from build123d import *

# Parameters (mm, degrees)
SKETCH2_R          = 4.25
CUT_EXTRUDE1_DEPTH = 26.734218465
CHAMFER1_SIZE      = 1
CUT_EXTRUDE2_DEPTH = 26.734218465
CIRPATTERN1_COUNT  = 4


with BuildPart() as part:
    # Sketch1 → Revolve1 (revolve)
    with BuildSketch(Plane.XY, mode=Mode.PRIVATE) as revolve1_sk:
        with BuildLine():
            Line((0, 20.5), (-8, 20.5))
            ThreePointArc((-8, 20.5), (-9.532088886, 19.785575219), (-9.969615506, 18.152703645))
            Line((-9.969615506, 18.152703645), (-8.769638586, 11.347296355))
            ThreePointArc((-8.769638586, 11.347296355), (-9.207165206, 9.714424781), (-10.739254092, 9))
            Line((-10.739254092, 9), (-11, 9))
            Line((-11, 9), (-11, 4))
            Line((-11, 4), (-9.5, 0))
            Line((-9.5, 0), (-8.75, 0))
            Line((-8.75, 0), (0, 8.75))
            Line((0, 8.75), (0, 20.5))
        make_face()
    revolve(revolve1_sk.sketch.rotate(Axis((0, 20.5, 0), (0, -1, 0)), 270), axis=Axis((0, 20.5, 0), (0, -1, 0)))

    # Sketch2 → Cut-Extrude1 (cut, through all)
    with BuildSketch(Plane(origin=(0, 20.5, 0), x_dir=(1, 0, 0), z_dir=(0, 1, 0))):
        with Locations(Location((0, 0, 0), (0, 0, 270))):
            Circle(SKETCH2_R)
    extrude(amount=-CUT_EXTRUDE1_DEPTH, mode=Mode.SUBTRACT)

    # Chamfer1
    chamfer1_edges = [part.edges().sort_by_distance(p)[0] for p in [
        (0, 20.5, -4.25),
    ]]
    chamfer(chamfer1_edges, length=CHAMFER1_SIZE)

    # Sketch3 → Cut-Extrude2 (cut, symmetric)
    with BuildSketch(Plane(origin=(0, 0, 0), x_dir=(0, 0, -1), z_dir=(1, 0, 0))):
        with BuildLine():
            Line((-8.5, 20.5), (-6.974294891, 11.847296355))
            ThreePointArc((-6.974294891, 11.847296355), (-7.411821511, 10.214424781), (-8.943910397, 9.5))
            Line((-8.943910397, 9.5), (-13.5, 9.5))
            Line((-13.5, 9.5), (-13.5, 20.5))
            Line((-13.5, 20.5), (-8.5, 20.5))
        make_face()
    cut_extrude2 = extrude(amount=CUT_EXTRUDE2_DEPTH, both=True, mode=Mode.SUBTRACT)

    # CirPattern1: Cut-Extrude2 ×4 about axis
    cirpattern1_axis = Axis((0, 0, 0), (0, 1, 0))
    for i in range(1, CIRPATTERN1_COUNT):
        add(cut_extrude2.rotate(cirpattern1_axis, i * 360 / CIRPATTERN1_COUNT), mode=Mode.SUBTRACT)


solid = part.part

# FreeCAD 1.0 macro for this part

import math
import FreeCAD as App
import Part
import Sketcher
from FreeCAD import Vector
Q = App.Units.Quantity


def edges_at(feature, points):
    """Names of the edges that pass closest to the given points."""
    edges = feature.Shape.Edges
    near = lambda p: min(range(len(edges)), key=lambda i: edges[i].distToShape(Part.Vertex(*p))[0])
    return sorted({f"Edge{near(p) + 1}" for p in points})

doc = App.newDocument("Part")
params = doc.addObject("Spreadsheet::Sheet", "Params")
for row, (alias, value) in enumerate([
    ("sketch1_radius", "2 mm"),
    ("sketch1_width", "8 mm"),
    ("sketch1_height", "5 mm"),
    ("sketch1_width2", "0.75 mm"),
    ("sketch1_height2", "11.75 mm"),
    ("revolution_angle", "360 deg"),
    ("sketch2_diameter", "8.5 mm"),
    ("chamfer_size", "1 mm"),
    ("sketch3_radius", "2 mm"),
    ("sketch3_width", "11 mm"),
    ("sketch3_height", "5 mm"),
    ("pocket2_length", "53.468437 mm"),
], start=1):
    params.set(f"A{row}", alias)
    params.set(f"B{row}", "=" + value)
    params.setAlias(f"B{row}", alias)

body = doc.addObject("PartDesign::Body", "Body")

sketch1 = body.newObject("Sketcher::SketchObject", "Sketch")
sketch1.AttachmentSupport = (doc.getObject("XY_Plane"), [""])
sketch1.MapMode = "FlatFace"
sketch1.addGeometry([
    Part.LineSegment(Vector(0, 20.5, 0), Vector(-8, 20.5, 0)),
    Part.ArcOfCircle(Part.Circle(Vector(-8, 18.5, 0), Vector(0, 0, 1), 2), math.radians(90), math.radians(190)),
    Part.LineSegment(Vector(-9.97, 18.15, 0), Vector(-8.77, 11.35, 0)),
    Part.ArcOfCircle(Part.Circle(Vector(-10.74, 11, 0), Vector(0, 0, 1), 2), math.radians(-90), math.radians(10)),
    Part.LineSegment(Vector(-10.74, 9, 0), Vector(-11, 9, 0)),
    Part.LineSegment(Vector(-11, 9, 0), Vector(-11, 4, 0)),
    Part.LineSegment(Vector(-11, 4, 0), Vector(-9.5, 0, 0)),
    Part.LineSegment(Vector(-9.5, 0, 0), Vector(-8.75, 0, 0)),
    Part.LineSegment(Vector(-8.75, 0, 0), Vector(0, 8.75, 0)),
    Part.LineSegment(Vector(0, 8.75, 0), Vector(0, 20.5, 0)),
], False)
sketch1.addConstraint([
    Sketcher.Constraint("Tangent", 0, 2, 1, 1),
    Sketcher.Constraint("Tangent", 1, 2, 2, 1),
    Sketcher.Constraint("Tangent", 2, 2, 3, 2),
    Sketcher.Constraint("Tangent", 3, 1, 4, 1),
    Sketcher.Constraint("Coincident", 4, 2, 5, 1),
    Sketcher.Constraint("Coincident", 5, 2, 6, 1),
    Sketcher.Constraint("Coincident", 6, 2, 7, 1),
    Sketcher.Constraint("Coincident", 7, 2, 8, 1),
    Sketcher.Constraint("Coincident", 8, 2, 9, 1),
    Sketcher.Constraint("Coincident", 9, 2, 0, 1),
    Sketcher.Constraint("Horizontal", 0),
    Sketcher.Constraint("Horizontal", 4),
    Sketcher.Constraint("Vertical", 5),
    Sketcher.Constraint("Horizontal", 7),
    Sketcher.Constraint("Vertical", 9),
    Sketcher.Constraint("Equal", 1, 3),
    Sketcher.Constraint("PointOnObject", 6, 2, -1),
    Sketcher.Constraint("PointOnObject", 8, 2, -2),
    Sketcher.Constraint("Radius", 1, Q("2 mm")),
    Sketcher.Constraint("DistanceX", 0, 2, 0, 1, Q("8 mm")),
    Sketcher.Constraint("DistanceY", 5, 2, 5, 1, Q("5 mm")),
    Sketcher.Constraint("Angle", 2, Q("-80 deg")),
    Sketcher.Constraint("Angle", 8, Q("45 deg")),
    Sketcher.Constraint("DistanceY", -1, 1, 3, 3, Q("11 mm")),
    Sketcher.Constraint("DistanceX", 4, 2, -1, 1, Q("11 mm")),
    Sketcher.Constraint("DistanceX", 7, 1, 7, 2, Q("0.75 mm")),
    Sketcher.Constraint("DistanceY", 9, 1, 9, 2, Q("11.75 mm")),
    Sketcher.Constraint("DistanceY", -1, 1, 1, 3, Q("18.5 mm")),
])
sketch1.setExpression("Constraints[18]", "Params.sketch1_radius")
sketch1.setExpression("Constraints[19]", "Params.sketch1_width")
sketch1.setExpression("Constraints[20]", "Params.sketch1_height")
sketch1.setExpression("Constraints[25]", "Params.sketch1_width2")
sketch1.setExpression("Constraints[26]", "Params.sketch1_height2")
revolution = body.newObject("PartDesign::Revolution", "Revolution")
revolution.Profile = sketch1
revolution.ReferenceAxis = (sketch1, ["V_Axis"])
revolution.setExpression("Angle", "Params.revolution_angle")

sketch2 = body.newObject("Sketcher::SketchObject", "Sketch001")
sketch2.AttachmentSupport = (doc.getObject("XZ_Plane"), [""])
sketch2.MapMode = "FlatFace"
sketch2.AttachmentOffset = App.Placement(Vector(0, 0, -20.5), App.Rotation())
sketch2.addGeometry(Part.Circle(Vector(0, 0, 0), Vector(0, 0, 1), 4.2), False)
sketch2.addConstraint([
    Sketcher.Constraint("Coincident", 0, 3, -1, 1),
    Sketcher.Constraint("Diameter", 0, Q("8.5 mm")),
])
sketch2.setExpression("Constraints[1]", "Params.sketch2_diameter")
pocket1 = body.newObject("PartDesign::Pocket", "Pocket")
pocket1.Profile = sketch2
pocket1.Type = "ThroughAll"
pocket1.Reversed = True
doc.recompute()

chamfer = body.newObject("PartDesign::Chamfer", "Chamfer")
chamfer.Base = (pocket1, edges_at(pocket1, [(0, 20.5, -4.25)]))
chamfer.setExpression("Size", "Params.chamfer_size")

sketch3 = body.newObject("Sketcher::SketchObject", "Sketch002")
sketch3.AttachmentSupport = (doc.getObject("YZ_Plane"), [""])
sketch3.MapMode = "FlatFace"
sketch3.addGeometry([
    Part.LineSegment(Vector(11.8, 7, 0), Vector(20.5, 8.5, 0)),
    Part.LineSegment(Vector(20.5, 8.5, 0), Vector(20.5, 13.5, 0)),
    Part.LineSegment(Vector(20.5, 13.5, 0), Vector(9.5, 13.5, 0)),
    Part.LineSegment(Vector(9.5, 13.5, 0), Vector(9.5, 8.9, 0)),
    Part.ArcOfCircle(Part.Circle(Vector(11.5, 8.9, 0), Vector(0, 0, 1), 2), math.radians(-180), math.radians(-80)),
], False)
sketch3.addConstraint([
    Sketcher.Constraint("Coincident", 0, 2, 1, 1),
    Sketcher.Constraint("Coincident", 1, 2, 2, 1),
    Sketcher.Constraint("Coincident", 2, 2, 3, 1),
    Sketcher.Constraint("Tangent", 3, 2, 4, 1),
    Sketcher.Constraint("Tangent", 4, 2, 0, 1),
    Sketcher.Constraint("Vertical", 1),
    Sketcher.Constraint("Horizontal", 2),
    Sketcher.Constraint("Vertical", 3),
    Sketcher.Constraint("Radius", 4, Q("2 mm")),
    Sketcher.Constraint("DistanceX", 2, 2, 2, 1, Q("11 mm")),
    Sketcher.Constraint("DistanceY", 1, 1, 1, 2, Q("5 mm")),
    Sketcher.Constraint("Angle", 0, Q("10 deg")),
    Sketcher.Constraint("DistanceX", -1, 1, 4, 3, Q("11.5 mm")),
    Sketcher.Constraint("DistanceY", -1, 1, 0, 2, Q("8.5 mm")),
])
sketch3.setExpression("Constraints[8]", "Params.sketch3_radius")
sketch3.setExpression("Constraints[9]", "Params.sketch3_width")
sketch3.setExpression("Constraints[10]", "Params.sketch3_height")
pocket2 = body.newObject("PartDesign::Pocket", "Pocket001")
pocket2.Profile = sketch3
pocket2.setExpression("Length", "Params.pocket2_length")
pocket2.Midplane = True
doc.recompute()

polarpattern = body.newObject("PartDesign::PolarPattern", "PolarPattern")
polarpattern.Originals = [pocket2]
polarpattern.Axis = (doc.getObject("Y_Axis"), [""])
polarpattern.Angle = 360
polarpattern.Occurrences = 4
body.Tip = polarpattern

doc.recompute()
